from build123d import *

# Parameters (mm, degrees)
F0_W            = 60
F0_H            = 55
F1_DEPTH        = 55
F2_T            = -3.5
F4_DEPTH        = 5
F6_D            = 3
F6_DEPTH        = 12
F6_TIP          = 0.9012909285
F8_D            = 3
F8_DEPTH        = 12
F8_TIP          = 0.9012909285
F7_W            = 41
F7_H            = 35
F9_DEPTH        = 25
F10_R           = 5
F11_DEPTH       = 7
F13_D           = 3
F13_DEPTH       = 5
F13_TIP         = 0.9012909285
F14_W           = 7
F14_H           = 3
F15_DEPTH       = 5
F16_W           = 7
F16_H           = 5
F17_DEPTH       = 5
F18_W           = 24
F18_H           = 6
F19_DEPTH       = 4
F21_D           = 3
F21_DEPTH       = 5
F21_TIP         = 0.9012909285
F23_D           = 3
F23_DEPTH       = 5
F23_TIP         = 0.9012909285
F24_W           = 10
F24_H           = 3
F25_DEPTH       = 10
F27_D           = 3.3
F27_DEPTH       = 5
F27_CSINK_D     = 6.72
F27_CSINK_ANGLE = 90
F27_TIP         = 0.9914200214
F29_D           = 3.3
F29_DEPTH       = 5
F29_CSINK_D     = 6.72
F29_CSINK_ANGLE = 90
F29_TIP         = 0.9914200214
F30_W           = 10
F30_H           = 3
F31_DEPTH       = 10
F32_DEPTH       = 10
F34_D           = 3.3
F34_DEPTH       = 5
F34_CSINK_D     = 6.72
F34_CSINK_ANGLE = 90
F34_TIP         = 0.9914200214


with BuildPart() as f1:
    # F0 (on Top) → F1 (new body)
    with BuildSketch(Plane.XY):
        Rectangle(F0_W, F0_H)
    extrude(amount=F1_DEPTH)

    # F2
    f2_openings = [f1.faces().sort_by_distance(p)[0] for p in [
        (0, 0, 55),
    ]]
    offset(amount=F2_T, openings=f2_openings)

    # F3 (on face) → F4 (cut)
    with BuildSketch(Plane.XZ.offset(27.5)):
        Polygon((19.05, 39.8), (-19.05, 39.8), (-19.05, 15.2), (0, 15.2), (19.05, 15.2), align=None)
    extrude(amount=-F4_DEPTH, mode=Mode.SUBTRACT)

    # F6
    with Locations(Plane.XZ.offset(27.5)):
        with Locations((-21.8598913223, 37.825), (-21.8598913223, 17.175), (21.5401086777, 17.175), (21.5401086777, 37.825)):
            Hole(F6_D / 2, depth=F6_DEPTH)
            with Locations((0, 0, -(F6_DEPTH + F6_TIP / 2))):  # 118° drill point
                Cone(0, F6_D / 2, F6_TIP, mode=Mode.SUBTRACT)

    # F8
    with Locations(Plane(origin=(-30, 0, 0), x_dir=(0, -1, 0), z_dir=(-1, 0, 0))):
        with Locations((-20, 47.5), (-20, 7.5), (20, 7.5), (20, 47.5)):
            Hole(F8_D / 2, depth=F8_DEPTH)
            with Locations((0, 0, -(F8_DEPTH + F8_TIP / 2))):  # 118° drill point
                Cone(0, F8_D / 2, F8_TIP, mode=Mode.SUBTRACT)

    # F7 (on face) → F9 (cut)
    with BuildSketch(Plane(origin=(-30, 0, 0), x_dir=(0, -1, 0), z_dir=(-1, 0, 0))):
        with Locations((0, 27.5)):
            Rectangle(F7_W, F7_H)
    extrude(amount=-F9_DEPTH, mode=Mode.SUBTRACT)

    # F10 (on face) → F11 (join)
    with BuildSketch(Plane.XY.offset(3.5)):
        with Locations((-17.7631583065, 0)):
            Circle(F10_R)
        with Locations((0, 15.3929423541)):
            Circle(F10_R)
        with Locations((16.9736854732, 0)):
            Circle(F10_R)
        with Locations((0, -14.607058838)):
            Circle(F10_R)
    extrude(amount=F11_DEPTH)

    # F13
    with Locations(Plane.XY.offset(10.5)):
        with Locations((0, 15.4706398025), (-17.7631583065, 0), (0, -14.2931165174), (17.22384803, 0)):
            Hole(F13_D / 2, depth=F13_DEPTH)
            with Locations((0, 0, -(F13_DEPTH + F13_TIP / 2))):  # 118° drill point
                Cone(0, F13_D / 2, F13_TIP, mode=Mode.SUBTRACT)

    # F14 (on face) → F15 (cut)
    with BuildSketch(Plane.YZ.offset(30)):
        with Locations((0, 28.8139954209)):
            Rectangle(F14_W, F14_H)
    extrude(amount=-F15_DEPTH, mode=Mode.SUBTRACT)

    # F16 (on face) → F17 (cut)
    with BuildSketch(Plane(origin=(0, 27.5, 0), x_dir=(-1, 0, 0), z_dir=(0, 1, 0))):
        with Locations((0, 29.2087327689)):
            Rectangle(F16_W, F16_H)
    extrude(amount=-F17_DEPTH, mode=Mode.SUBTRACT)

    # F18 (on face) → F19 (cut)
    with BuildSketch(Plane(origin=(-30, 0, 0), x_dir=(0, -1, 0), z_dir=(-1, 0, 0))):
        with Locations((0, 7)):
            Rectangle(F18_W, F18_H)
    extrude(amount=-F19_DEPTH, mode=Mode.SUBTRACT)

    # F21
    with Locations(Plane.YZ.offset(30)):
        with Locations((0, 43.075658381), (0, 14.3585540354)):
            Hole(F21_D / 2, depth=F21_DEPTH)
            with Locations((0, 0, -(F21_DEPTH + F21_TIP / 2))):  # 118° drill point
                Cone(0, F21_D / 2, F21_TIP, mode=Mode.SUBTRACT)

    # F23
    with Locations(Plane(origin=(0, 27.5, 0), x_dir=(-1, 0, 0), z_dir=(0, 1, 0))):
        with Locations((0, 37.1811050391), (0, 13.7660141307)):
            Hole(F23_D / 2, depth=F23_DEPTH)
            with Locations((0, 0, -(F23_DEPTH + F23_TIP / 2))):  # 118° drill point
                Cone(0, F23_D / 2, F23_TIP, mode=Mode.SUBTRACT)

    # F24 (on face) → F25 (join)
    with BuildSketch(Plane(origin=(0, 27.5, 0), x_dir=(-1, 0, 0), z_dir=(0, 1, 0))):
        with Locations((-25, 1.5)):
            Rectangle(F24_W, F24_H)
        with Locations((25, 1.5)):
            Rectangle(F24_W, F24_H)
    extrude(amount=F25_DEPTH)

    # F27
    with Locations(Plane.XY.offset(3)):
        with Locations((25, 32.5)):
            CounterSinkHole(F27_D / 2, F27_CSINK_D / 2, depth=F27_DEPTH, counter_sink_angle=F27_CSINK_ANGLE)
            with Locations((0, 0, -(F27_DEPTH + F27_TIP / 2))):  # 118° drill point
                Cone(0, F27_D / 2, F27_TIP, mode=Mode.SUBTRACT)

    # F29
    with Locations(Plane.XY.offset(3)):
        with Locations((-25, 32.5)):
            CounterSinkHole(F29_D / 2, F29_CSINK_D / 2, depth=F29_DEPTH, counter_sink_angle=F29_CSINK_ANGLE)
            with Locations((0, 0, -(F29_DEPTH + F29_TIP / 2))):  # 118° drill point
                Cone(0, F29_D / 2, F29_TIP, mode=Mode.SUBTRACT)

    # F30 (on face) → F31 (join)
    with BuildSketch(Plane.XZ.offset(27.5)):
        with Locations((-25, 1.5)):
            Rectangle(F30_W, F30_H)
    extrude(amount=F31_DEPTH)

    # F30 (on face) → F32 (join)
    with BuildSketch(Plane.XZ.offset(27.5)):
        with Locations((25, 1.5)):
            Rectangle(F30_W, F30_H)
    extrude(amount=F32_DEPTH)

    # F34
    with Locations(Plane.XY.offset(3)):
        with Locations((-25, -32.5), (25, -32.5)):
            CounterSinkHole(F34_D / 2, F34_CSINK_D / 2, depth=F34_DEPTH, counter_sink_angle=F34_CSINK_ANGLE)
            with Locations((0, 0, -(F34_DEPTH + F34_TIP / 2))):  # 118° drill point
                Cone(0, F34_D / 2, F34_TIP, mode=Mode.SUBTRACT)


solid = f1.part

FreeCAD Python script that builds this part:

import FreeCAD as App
import Part
import Sketcher

V = App.Vector


def faces_at(feature, points):
    """Names of the faces that lie closest to the given points."""
    faces = feature.Shape.Faces
    near = lambda p: min(range(len(faces)), key=lambda i: faces[i].distToShape(Part.Vertex(*p))[0])
    return sorted({f"Face{near(p) + 1}" for p in points})

doc = App.newDocument("Part")
body = doc.addObject("PartDesign::Body", "Body")

# Sketch on XY plane
sketch1 = doc.addObject("Sketcher::SketchObject", "Sketch")
body.addObject(sketch1)
sketch1.AttachmentSupport = (doc.XY_Plane, [""])
sketch1.MapMode = "FlatFace"
sketch1.addGeometry([
    Part.LineSegment(V(-30, 27.5, 0), V(-30, -27.5, 0)),
    Part.LineSegment(V(-30, -27.5, 0), V(30, -27.5, 0)),
    Part.LineSegment(V(30, -27.5, 0), V(30, 27.5, 0)),
    Part.LineSegment(V(30, 27.5, 0), V(-30, 27.5, 0)),
], False)
sketch1.addConstraint([
    Sketcher.Constraint("Coincident", 0, 2, 1, 1),
    Sketcher.Constraint("Coincident", 1, 2, 2, 1),
    Sketcher.Constraint("Coincident", 2, 2, 3, 1),
    Sketcher.Constraint("Coincident", 3, 2, 0, 1),
    Sketcher.Constraint("Vertical", 0),
    Sketcher.Constraint("Horizontal", 1),
    Sketcher.Constraint("Vertical", 2),
    Sketcher.Constraint("Horizontal", 3),
    Sketcher.Constraint("Symmetric", 0, 2, 2, 2, -1, 1),
    Sketcher.Constraint("DistanceX", 1, 1, 1, 2, 60.0),
    Sketcher.Constraint("DistanceY", 0, 2, 0, 1, 55.0),
])
pad1 = doc.addObject("PartDesign::Pad", "Pad")
body.addObject(pad1)
pad1.Profile = sketch1
pad1.Length = 55
doc.recompute()

thickness = doc.addObject("PartDesign::Thickness", "Thickness")
body.addObject(thickness)
thickness.Base = (pad1, faces_at(pad1, [(0, 0, 55)]))
thickness.Value = 3.5
thickness.Reversed = True
thickness.Join = "Arc"

# Sketch on XZ plane
sketch2 = doc.addObject("Sketcher::SketchObject", "Sketch001")
body.addObject(sketch2)
sketch2.AttachmentSupport = (doc.XZ_Plane, [""])
sketch2.MapMode = "FlatFace"
sketch2.AttachmentOffset = App.Placement(V(0, 0, 27.5), App.Rotation())
sketch2.addGeometry([
    Part.LineSegment(V(19.05, 39.8, 0), V(-19.05, 39.8, 0)),
    Part.LineSegment(V(-19.05, 39.8, 0), V(-19.05, 15.2, 0)),
    Part.LineSegment(V(-19.05, 15.2, 0), V(19.05, 15.2, 0)),
    Part.LineSegment(V(19.05, 15.2, 0), V(19.05, 39.8, 0)),
], False)
sketch2.addConstraint([
    Sketcher.Constraint("Coincident", 0, 2, 1, 1),
    Sketcher.Constraint("Coincident", 1, 2, 2, 1),
    Sketcher.Constraint("Coincident", 2, 2, 3, 1),
    Sketcher.Constraint("Coincident", 3, 2, 0, 1),
    Sketcher.Constraint("Horizontal", 0),
    Sketcher.Constraint("Vertical", 1),
    Sketcher.Constraint("Horizontal", 2),
    Sketcher.Constraint("Vertical", 3),
    Sketcher.Constraint("DistanceX", 0, 2, 0, 1, 38.1),
    Sketcher.Constraint("DistanceY", 1, 2, 1, 1, 24.6),
    Sketcher.Constraint("DistanceY", -1, 1, 0, 2, 39.8),
    Sketcher.Constraint("DistanceX", 0, 2, -1, 1, 19.05),
])
pocket1 = doc.addObject("PartDesign::Pocket", "Pocket")
body.addObject(pocket1)
pocket1.Profile = sketch2
pocket1.Length = 5

# Sketch on XZ plane
sketch3 = doc.addObject("Sketcher::SketchObject", "Sketch002")
body.addObject(sketch3)
sketch3.AttachmentSupport = (doc.XZ_Plane, [""])
sketch3.MapMode = "FlatFace"
sketch3.AttachmentOffset = App.Placement(V(0, 0, 27.5), App.Rotation())
sketch3.addGeometry([
    Part.Circle(V(-21.859891, 37.825, 0), V(0, 0, 1), 1.5),
    Part.Circle(V(-21.859891, 17.175, 0), V(0, 0, 1), 1.5),
    Part.Circle(V(21.540109, 17.175, 0), V(0, 0, 1), 1.5),
    Part.Circle(V(21.540109, 37.825, 0), V(0, 0, 1), 1.5),
], False)
sketch3.addConstraint([
    Sketcher.Constraint("Equal", 0, 1),
    Sketcher.Constraint("Equal", 1, 2),
    Sketcher.Constraint("Equal", 2, 3),
    Sketcher.Constraint("Horizontal", 1, 3, 2, 3),
    Sketcher.Constraint("Horizontal", 0, 3, 3, 3),
    Sketcher.Constraint("Vertical", 0, 3, 1, 3),
    Sketcher.Constraint("Vertical", 2, 3, 3, 3),
    Sketcher.Constraint("Diameter", 0, 3.0),
    Sketcher.Constraint("DistanceX", 1, 3, 2, 3, 43.4),
    Sketcher.Constraint("DistanceY", 1, 3, 0, 3, 20.65),
    Sketcher.Constraint("DistanceY", -1, 1, 0, 3, 37.825),
    Sketcher.Constraint("DistanceX", 0, 3, -1, 1, 21.859891),
])
doc.recompute()
hole = doc.addObject("PartDesign::Hole", "Hole")
body.addObject(hole)
hole.Profile = sketch3
hole.ThreadType = "None"
hole.Diameter = 3
hole.DepthType = "Dimension"
hole.Depth = 12
hole.DrillPoint = "Angled"
hole.DrillPointAngle = 118

# Sketch on YZ plane
sketch4 = doc.addObject("Sketcher::SketchObject", "Sketch003")
body.addObject(sketch4)
sketch4.AttachmentSupport = (doc.YZ_Plane, [""])
sketch4.MapMode = "FlatFace"
sketch4.AttachmentOffset = App.Placement(V(0, 0, -30), App.Rotation())
sketch4.addGeometry([
    Part.Circle(V(20, 47.5, 0), V(0, 0, 1), 1.5),
    Part.Circle(V(20, 7.5, 0), V(0, 0, 1), 1.5),
    Part.Circle(V(-20, 7.5, 0), V(0, 0, 1), 1.5),
    Part.Circle(V(-20, 47.5, 0), V(0, 0, 1), 1.5),
], False)
sketch4.addConstraint([
    Sketcher.Constraint("Equal", 0, 1),
    Sketcher.Constraint("Equal", 1, 2),
    Sketcher.Constraint("Equal", 2, 3),
    Sketcher.Constraint("Symmetric", 1, 3, 2, 3, -2),
    Sketcher.Constraint("Symmetric", 0, 3, 3, 3, -2),
    Sketcher.Constraint("Vertical", 0, 3, 1, 3),
    Sketcher.Constraint("Diameter", 0, 3.0),
    Sketcher.Constraint("DistanceX", -1, 1, 0, 3, 20.0),
    Sketcher.Constraint("DistanceY", 1, 3, 0, 3, 40.0),
    Sketcher.Constraint("DistanceY", -1, 1, 0, 3, 47.5),
])
doc.recompute()
hole2 = doc.addObject("PartDesign::Hole", "Hole001")
body.addObject(hole2)
hole2.Profile = sketch4
hole2.ThreadType = "None"
hole2.Diameter = 3
hole2.DepthType = "Dimension"
hole2.Depth = 12
hole2.DrillPoint = "Angled"
hole2.DrillPointAngle = 118
hole2.Reversed = True

# Sketch on YZ plane
sketch5 = doc.addObject("Sketcher::SketchObject", "Sketch004")
body.addObject(sketch5)
sketch5.AttachmentSupport = (doc.YZ_Plane, [""])
sketch5.MapMode = "FlatFace"
sketch5.AttachmentOffset = App.Placement(V(0, 0, -30), App.Rotation())
sketch5.addGeometry([
    Part.LineSegment(V(20.5, 45, 0), V(20.5, 10, 0)),
    Part.LineSegment(V(20.5, 10, 0), V(-20.5, 10, 0)),
    Part.LineSegment(V(-20.5, 10, 0), V(-20.5, 45, 0)),
    Part.LineSegment(V(-20.5, 45, 0), V(20.5, 45, 0)),
], False)
sketch5.addConstraint([
    Sketcher.Constraint("Coincident", 0, 2, 1, 1),
    Sketcher.Constraint("Coincident", 1, 2, 2, 1),
    Sketcher.Constraint("Coincident", 2, 2, 3, 1),
    Sketcher.Constraint("Coincident", 3, 2, 0, 1),
    Sketcher.Constraint("Vertical", 0),
    Sketcher.Constraint("Horizontal", 1),
    Sketcher.Constraint("Vertical", 2),
    Sketcher.Constraint("Horizontal", 3),
    Sketcher.Constraint("DistanceX", 1, 2, 1, 1, 41.0),
    Sketcher.Constraint("DistanceY", 0, 2, 0, 1, 35.0),
    Sketcher.Constraint("DistanceY", -1, 1, 0, 2, 10.0),
    Sketcher.Constraint("DistanceX", -1, 1, 0, 2, 20.5),
])
pocket2 = doc.addObject("PartDesign::Pocket", "Pocket001")
body.addObject(pocket2)
pocket2.Profile = sketch5
pocket2.Length = 25
pocket2.Reversed = True

# Sketch on XY plane
sketch6 = doc.addObject("Sketcher::SketchObject", "Sketch005")
body.addObject(sketch6)
sketch6.AttachmentSupport = (doc.XY_Plane, [""])
sketch6.MapMode = "FlatFace"
sketch6.AttachmentOffset = App.Placement(V(0, 0, 3.5), App.Rotation())
sketch6.addGeometry([
    Part.Circle(V(-17.763158, 0, 0), V(0, 0, 1), 5),
    Part.Circle(V(0, 15.392942, 0), V(0, 0, 1), 5),
    Part.Circle(V(16.973685, 0, 0), V(0, 0, 1), 5),
    Part.Circle(V(0, -14.607059, 0), V(0, 0, 1), 5),
], False)
sketch6.addConstraint([
    Sketcher.Constraint("Equal", 0, 1),
    Sketcher.Constraint("Equal", 1, 2),
    Sketcher.Constraint("Equal", 2, 3),
    Sketcher.Constraint("PointOnObject", 0, 3, -1),
    Sketcher.Constraint("PointOnObject", 1, 3, -2),
    Sketcher.Constraint("PointOnObject", 2, 3, -1),
    Sketcher.Constraint("PointOnObject", 3, 3, -2),
    Sketcher.Constraint("Diameter", 0, 10.0),
    Sketcher.Constraint("DistanceY", 3, 3, 1, 3, 30.000001),
    Sketcher.Constraint("DistanceX", 0, 3, -1, 1, 17.763158),
    Sketcher.Constraint("DistanceY", 3, 3, -1, 1, 14.607059),
    Sketcher.Constraint("DistanceX", -1, 1, 2, 3, 16.973685),
])
pad2 = doc.addObject("PartDesign::Pad", "Pad001")
body.addObject(pad2)
pad2.Profile = sketch6
pad2.Length = 7

# Sketch on XY plane
sketch7 = doc.addObject("Sketcher::SketchObject", "Sketch006")
body.addObject(sketch7)
sketch7.AttachmentSupport = (doc.XY_Plane, [""])
sketch7.MapMode = "FlatFace"
sketch7.AttachmentOffset = App.Placement(V(0, 0, 10.5), App.Rotation())
sketch7.addGeometry([
    Part.Circle(V(0, 15.47064, 0), V(0, 0, 1), 1.5),
    Part.Circle(V(-17.763158, 0, 0), V(0, 0, 1), 1.5),
    Part.Circle(V(0, -14.293117, 0), V(0, 0, 1), 1.5),
    Part.Circle(V(17.223848, 0, 0), V(0, 0, 1), 1.5),
], False)
sketch7.addConstraint([
    Sketcher.Constraint("Equal", 0, 1),
    Sketcher.Constraint("Equal", 1, 2),
    Sketcher.Constraint("Equal", 2, 3),
    Sketcher.Constraint("PointOnObject", 0, 3, -2),
    Sketcher.Constraint("PointOnObject", 1, 3, -1),
    Sketcher.Constraint("PointOnObject", 2, 3, -2),
    Sketcher.Constraint("PointOnObject", 3, 3, -1),
    Sketcher.Constraint("Diameter", 0, 3.0),
    Sketcher.Constraint("DistanceY", -1, 1, 0, 3, 15.47064),
    Sketcher.Constraint("DistanceX", 1, 3, -1, 1, 17.763158),
    Sketcher.Constraint("DistanceX", -1, 1, 3, 3, 17.223848),
    Sketcher.Constraint("DistanceY", 2, 3, -1, 1, 14.293117),
])
doc.recompute()
hole3 = doc.addObject("PartDesign::Hole", "Hole002")
body.addObject(hole3)
hole3.Profile = sketch7
hole3.ThreadType = "None"
hole3.Diameter = 3
hole3.DepthType = "Dimension"
hole3.Depth = 5
hole3.DrillPoint = "Angled"
hole3.DrillPointAngle = 118

# Sketch on YZ plane
sketch8 = doc.addObject("Sketcher::SketchObject", "Sketch007")
body.addObject(sketch8)
sketch8.AttachmentSupport = (doc.YZ_Plane, [""])
sketch8.MapMode = "FlatFace"
sketch8.AttachmentOffset = App.Placement(V(0, 0, 30), App.Rotation())
sketch8.addGeometry([
    Part.LineSegment(V(-3.5, 30.313995, 0), V(-3.5, 27.313995, 0)),
    Part.LineSegment(V(-3.5, 27.313995, 0), V(3.5, 27.313995, 0)),
    Part.LineSegment(V(3.5, 27.313995, 0), V(3.5, 30.313995, 0)),
    Part.LineSegment(V(3.5, 30.313995, 0), V(-3.5, 30.313995, 0)),
], False)
sketch8.addConstraint([
    Sketcher.Constraint("Coincident", 0, 2, 1, 1),
    Sketcher.Constraint("Coincident", 1, 2, 2, 1),
    Sketcher.Constraint("Coincident", 2, 2, 3, 1),
    Sketcher.Constraint("Coincident", 3, 2, 0, 1),
    Sketcher.Constraint("Vertical", 0),
    Sketcher.Constraint("Horizontal", 1),
    Sketcher.Constraint("Vertical", 2),
    Sketcher.Constraint("Horizontal", 3),
    Sketcher.Constraint("DistanceX", 1, 1, 1, 2, 7.0),
    Sketcher.Constraint("DistanceY", 0, 2, 0, 1, 3.0),
    Sketcher.Constraint("DistanceX", 0, 2, -1, 1, 3.5),
    Sketcher.Constraint("DistanceY", -1, 1, 0, 2, 27.313995),
])
pocket3 = doc.addObject("PartDesign::Pocket", "Pocket002")
body.addObject(pocket3)
pocket3.Profile = sketch8
pocket3.Length = 5

# Sketch on XZ plane
sketch9 = doc.addObject("Sketcher::SketchObject", "Sketch008")
body.addObject(sketch9)
sketch9.AttachmentSupport = (doc.XZ_Plane, [""])
sketch9.MapMode = "FlatFace"
sketch9.AttachmentOffset = App.Placement(V(0, 0, -27.5), App.Rotation())
sketch9.addGeometry([
    Part.LineSegment(V(3.5, 31.708733, 0), V(3.5, 26.708733, 0)),
    Part.LineSegment(V(3.5, 26.708733, 0), V(-3.5, 26.708733, 0)),
    Part.LineSegment(V(-3.5, 26.708733, 0), V(-3.5, 31.708733, 0)),
    Part.LineSegment(V(-3.5, 31.708733, 0), V(3.5, 31.708733, 0)),
], False)
sketch9.addConstraint([
    Sketcher.Constraint("Coincident", 0, 2, 1, 1),
    Sketcher.Constraint("Coincident", 1, 2, 2, 1),
    Sketcher.Constraint("Coincident", 2, 2, 3, 1),
    Sketcher.Constraint("Coincident", 3, 2, 0, 1),
    Sketcher.Constraint("Vertical", 0),
    Sketcher.Constraint("Horizontal", 1),
    Sketcher.Constraint("Vertical", 2),
    Sketcher.Constraint("Horizontal", 3),
    Sketcher.Constraint("DistanceX", 1, 2, 1, 1, 7.0),
    Sketcher.Constraint("DistanceY", 0, 2, 0, 1, 5.0),
    Sketcher.Constraint("DistanceX", -1, 1, 0, 2, 3.5),
    Sketcher.Constraint("DistanceY", -1, 1, 0, 2, 26.708733),
])
pocket4 = doc.addObject("PartDesign::Pocket", "Pocket003")
body.addObject(pocket4)
pocket4.Profile = sketch9
pocket4.Length = 5
pocket4.Reversed = True

# Sketch on YZ plane
sketch10 = doc.addObject("Sketcher::SketchObject", "Sketch009")
body.addObject(sketch10)
sketch10.AttachmentSupport = (doc.YZ_Plane, [""])
sketch10.MapMode = "FlatFace"
sketch10.AttachmentOffset = App.Placement(V(0, 0, -30), App.Rotation())
sketch10.addGeometry([
    Part.LineSegment(V(12, 10, 0), V(12, 4, 0)),
    Part.LineSegment(V(12, 4, 0), V(-12, 4, 0)),
    Part.LineSegment(V(-12, 4, 0), V(-12, 10, 0)),
    Part.LineSegment(V(-12, 10, 0), V(12, 10, 0)),
], False)
sketch10.addConstraint([
    Sketcher.Constraint("Coincident", 0, 2, 1, 1),
    Sketcher.Constraint("Coincident", 1, 2, 2, 1),
    Sketcher.Constraint("Coincident", 2, 2, 3, 1),
    Sketcher.Constraint("Coincident", 3, 2, 0, 1),
    Sketcher.Constraint("Vertical", 0),
    Sketcher.Constraint("Horizontal", 1),
    Sketcher.Constraint("Vertical", 2),
    Sketcher.Constraint("Horizontal", 3),
    Sketcher.Constraint("DistanceX", 1, 2, 1, 1, 24.0),
    Sketcher.Constraint("DistanceY", 0, 2, 0, 1, 6.0),
    Sketcher.Constraint("DistanceX", -1, 1, 0, 2, 12.0),
    Sketcher.Constraint("DistanceY", -1, 1, 0, 2, 4.0),
])
pocket5 = doc.addObject("PartDesign::Pocket", "Pocket004")
body.addObject(pocket5)
pocket5.Profile = sketch10
pocket5.Length = 4
pocket5.Reversed = True

# Sketch on YZ plane
sketch11 = doc.addObject("Sketcher::SketchObject", "Sketch010")
body.addObject(sketch11)
sketch11.AttachmentSupport = (doc.YZ_Plane, [""])
sketch11.MapMode = "FlatFace"
sketch11.AttachmentOffset = App.Placement(V(0, 0, 30), App.Rotation())
sketch11.addGeometry([
    Part.Circle(V(0, 43.075658, 0), V(0, 0, 1), 1.5),
    Part.Circle(V(0, 14.358554, 0), V(0, 0, 1), 1.5),
], False)
sketch11.addConstraint([
    Sketcher.Constraint("Equal", 0, 1),
    Sketcher.Constraint("PointOnObject", 0, 3, -2),
    Sketcher.Constraint("PointOnObject", 1, 3, -2),
    Sketcher.Constraint("Diameter", 0, 3.0),
    Sketcher.Constraint("DistanceY", -1, 1, 0, 3, 43.075658),
    Sketcher.Constraint("DistanceY", -1, 1, 1, 3, 14.358554),
])
doc.recompute()
hole4 = doc.addObject("PartDesign::Hole", "Hole003")
body.addObject(hole4)
hole4.Profile = sketch11
hole4.ThreadType = "None"
hole4.Diameter = 3
hole4.DepthType = "Dimension"
hole4.Depth = 5
hole4.DrillPoint = "Angled"
hole4.DrillPointAngle = 118

# Sketch on XZ plane
sketch12 = doc.addObject("Sketcher::SketchObject", "Sketch011")
body.addObject(sketch12)
sketch12.AttachmentSupport = (doc.XZ_Plane, [""])
sketch12.MapMode = "FlatFace"
sketch12.AttachmentOffset = App.Placement(V(0, 0, -27.5), App.Rotation())
sketch12.addGeometry([
    Part.Circle(V(0, 37.181105, 0), V(0, 0, 1), 1.5),
    Part.Circle(V(0, 13.766014, 0), V(0, 0, 1), 1.5),
], False)
sketch12.addConstraint([
    Sketcher.Constraint("Equal", 0, 1),
    Sketcher.Constraint("PointOnObject", 0, 3, -2),
    Sketcher.Constraint("PointOnObject", 1, 3, -2),
    Sketcher.Constraint("Diameter", 0, 3.0),
    Sketcher.Constraint("DistanceY", 1, 3, 0, 3, 23.415091),
    Sketcher.Constraint("DistanceY", -1, 1, 0, 3, 37.181105),
])
doc.recompute()
hole5 = doc.addObject("PartDesign::Hole", "Hole004")
body.addObject(hole5)
hole5.Profile = sketch12
hole5.ThreadType = "None"
hole5.Diameter = 3
hole5.DepthType = "Dimension"
hole5.Depth = 5
hole5.DrillPoint = "Angled"
hole5.DrillPointAngle = 118
hole5.Reversed = True

# Sketch on XZ plane
sketch13 = doc.addObject("Sketcher::SketchObject", "Sketch012")
body.addObject(sketch13)
sketch13.AttachmentSupport = (doc.XZ_Plane, [""])
sketch13.MapMode = "FlatFace"
sketch13.AttachmentOffset = App.Placement(V(0, 0, -27.5), App.Rotation())
sketch13.addGeometry([
    Part.LineSegment(V(30, 3, 0), V(30, 0, 0)),  # 0
    Part.LineSegment(V(30, 0, 0), V(20, 0, 0)),  # 1
    Part.LineSegment(V(20, 0, 0), V(20, 3, 0)),  # 2
    Part.LineSegment(V(20, 3, 0), V(30, 3, 0)),  # 3
    Part.LineSegment(V(-20, 3, 0), V(-20, 0, 0)),  # 4
    Part.LineSegment(V(-20, 0, 0), V(-30, 0, 0)),  # 5
    Part.LineSegment(V(-30, 0, 0), V(-30, 3, 0)),  # 6
    Part.LineSegment(V(-30, 3, 0), V(-20, 3, 0)),  # 7
], False)
sketch13.addConstraint([
    Sketcher.Constraint("Coincident", 0, 2, 1, 1),
    Sketcher.Constraint("Coincident", 1, 2, 2, 1),
    Sketcher.Constraint("Coincident", 2, 2, 3, 1),
    Sketcher.Constraint("Coincident", 3, 2, 0, 1),
    Sketcher.Constraint("Coincident", 4, 2, 5, 1),
    Sketcher.Constraint("Coincident", 5, 2, 6, 1),
    Sketcher.Constraint("Coincident", 6, 2, 7, 1),
    Sketcher.Constraint("Coincident", 7, 2, 4, 1),
    Sketcher.Constraint("Vertical", 0),
    Sketcher.Constraint("Horizontal", 1),
    Sketcher.Constraint("Vertical", 2),
    Sketcher.Constraint("Horizontal", 3),
    Sketcher.Constraint("Vertical", 4),
    Sketcher.Constraint("Horizontal", 5),
    Sketcher.Constraint("Vertical", 6),
    Sketcher.Constraint("Horizontal", 7),
    Sketcher.Constraint("Symmetric", 1, 2, 4, 2, -1, 1),
    Sketcher.Constraint("Symmetric", 0, 2, 5, 2, -2),
    Sketcher.Constraint("Horizontal", 3, 2, 6, 2),
    Sketcher.Constraint("DistanceX", 1, 2, 1, 1, 10.0),
    Sketcher.Constraint("DistanceY", 0, 2, 0, 1, 3.0),
    Sketcher.Constraint("DistanceX", -1, 1, 0, 2, 30.0),
])
pad3 = doc.addObject("PartDesign::Pad", "Pad002")
body.addObject(pad3)
pad3.Profile = sketch13
pad3.Length = 10
pad3.Reversed = True

# Sketch on XY plane
sketch14 = doc.addObject("Sketcher::SketchObject", "Sketch013")
body.addObject(sketch14)
sketch14.AttachmentSupport = (doc.XY_Plane, [""])
sketch14.MapMode = "FlatFace"
sketch14.AttachmentOffset = App.Placement(V(0, 0, 3), App.Rotation())
sketch14.addGeometry(Part.Circle(V(25, 32.5, 0), V(0, 0, 1), 1.65), False)
sketch14.addConstraint([
    Sketcher.Constraint("Diameter", 0, 3.3),
    Sketcher.Constraint("DistanceX", -1, 1, 0, 3, 25.0),
    Sketcher.Constraint("DistanceY", -1, 1, 0, 3, 32.5),
])
doc.recompute()
hole6 = doc.addObject("PartDesign::Hole", "Hole005")
body.addObject(hole6)
hole6.Profile = sketch14
hole6.ThreadType = "None"
hole6.Diameter = 3.3
hole6.DepthType = "Dimension"
hole6.Depth = 5
hole6.DrillPoint = "Angled"
hole6.DrillPointAngle = 118
hole6.HoleCutType = "Countersink"
hole6.HoleCutDiameter = 6.72
hole6.HoleCutCountersinkAngle = 90

# Sketch on XY plane
sketch15 = doc.addObject("Sketcher::SketchObject", "Sketch014")
body.addObject(sketch15)
sketch15.AttachmentSupport = (doc.XY_Plane, [""])
sketch15.MapMode = "FlatFace"
sketch15.AttachmentOffset = App.Placement(V(0, 0, 3), App.Rotation())
sketch15.addGeometry(Part.Circle(V(-25, 32.5, 0), V(0, 0, 1), 1.65), False)
sketch15.addConstraint([
    Sketcher.Constraint("Diameter", 0, 3.3),
    Sketcher.Constraint("DistanceX", 0, 3, -1, 1, 25.0),
    Sketcher.Constraint("DistanceY", -1, 1, 0, 3, 32.5),
])
doc.recompute()
hole7 = doc.addObject("PartDesign::Hole", "Hole006")
body.addObject(hole7)
hole7.Profile = sketch15
hole7.ThreadType = "None"
hole7.Diameter = 3.3
hole7.DepthType = "Dimension"
hole7.Depth = 5
hole7.DrillPoint = "Angled"
hole7.DrillPointAngle = 118
hole7.HoleCutType = "Countersink"
hole7.HoleCutDiameter = 6.72
hole7.HoleCutCountersinkAngle = 90

# Sketch on XZ plane
sketch16 = doc.addObject("Sketcher::SketchObject", "Sketch015")
body.addObject(sketch16)
sketch16.AttachmentSupport = (doc.XZ_Plane, [""])
sketch16.MapMode = "FlatFace"
sketch16.AttachmentOffset = App.Placement(V(0, 0, 27.5), App.Rotation())
sketch16.addGeometry([
    Part.LineSegment(V(-30, 3, 0), V(-30, 0, 0)),
    Part.LineSegment(V(-30, 0, 0), V(-20, 0, 0)),
    Part.LineSegment(V(-20, 0, 0), V(-20, 3, 0)),
    Part.LineSegment(V(-20, 3, 0), V(-30, 3, 0)),
], False)
sketch16.addConstraint([
    Sketcher.Constraint("Coincident", 0, 2, 1, 1),
    Sketcher.Constraint("Coincident", 1, 2, 2, 1),
    Sketcher.Constraint("Coincident", 2, 2, 3, 1),
    Sketcher.Constraint("Coincident", 3, 2, 0, 1),
    Sketcher.Constraint("Vertical", 0),
    Sketcher.Constraint("Horizontal", 1),
    Sketcher.Constraint("Vertical", 2),
    Sketcher.Constraint("Horizontal", 3),
    Sketcher.Constraint("PointOnObject", 0, 2, -1),
    Sketcher.Constraint("DistanceX", 1, 1, 1, 2, 10.0),
    Sketcher.Constraint("DistanceY", 0, 2, 0, 1, 3.0),
    Sketcher.Constraint("DistanceX", 0, 2, -1, 1, 30.0),
])
pad4 = doc.addObject("PartDesign::Pad", "Pad003")
body.addObject(pad4)
pad4.Profile = sketch16
pad4.Length = 10

# Sketch on XZ plane
sketch17 = doc.addObject("Sketcher::SketchObject", "Sketch016")
body.addObject(sketch17)
sketch17.AttachmentSupport = (doc.XZ_Plane, [""])
sketch17.MapMode = "FlatFace"
sketch17.AttachmentOffset = App.Placement(V(0, 0, 27.5), App.Rotation())
sketch17.addGeometry([
    Part.LineSegment(V(20, 3, 0), V(20, 0, 0)),
    Part.LineSegment(V(20, 0, 0), V(30, 0, 0)),
    Part.LineSegment(V(30, 0, 0), V(30, 3, 0)),
    Part.LineSegment(V(30, 3, 0), V(20, 3, 0)),
], False)
sketch17.addConstraint([
    Sketcher.Constraint("Coincident", 0, 2, 1, 1),
    Sketcher.Constraint("Coincident", 1, 2, 2, 1),
    Sketcher.Constraint("Coincident", 2, 2, 3, 1),
    Sketcher.Constraint("Coincident", 3, 2, 0, 1),
    Sketcher.Constraint("Vertical", 0),
    Sketcher.Constraint("Horizontal", 1),
    Sketcher.Constraint("Vertical", 2),
    Sketcher.Constraint("Horizontal", 3),
    Sketcher.Constraint("PointOnObject", 0, 2, -1),
    Sketcher.Constraint("DistanceX", 1, 1, 1, 2, 10.0),
    Sketcher.Constraint("DistanceY", 0, 2, 0, 1, 3.0),
    Sketcher.Constraint("DistanceX", -1, 1, 0, 2, 20.0),
])
pad5 = doc.addObject("PartDesign::Pad", "Pad004")
body.addObject(pad5)
pad5.Profile = sketch17
pad5.Length = 10

# Sketch on XY plane
sketch18 = doc.addObject("Sketcher::SketchObject", "Sketch017")
body.addObject(sketch18)
sketch18.AttachmentSupport = (doc.XY_Plane, [""])
sketch18.MapMode = "FlatFace"
sketch18.AttachmentOffset = App.Placement(V(0, 0, 3), App.Rotation())
sketch18.addGeometry([
    Part.Circle(V(-25, -32.5, 0), V(0, 0, 1), 1.65),
    Part.Circle(V(25, -32.5, 0), V(0, 0, 1), 1.65),
], False)
sketch18.addConstraint([
    Sketcher.Constraint("Equal", 0, 1),
    Sketcher.Constraint("Symmetric", 0, 3, 1, 3, -2),
    Sketcher.Constraint("Diameter", 0, 3.3),
    Sketcher.Constraint("DistanceX", 0, 3, -1, 1, 25.0),
    Sketcher.Constraint("DistanceY", 0, 3, -1, 1, 32.5),
])
doc.recompute()
hole8 = doc.addObject("PartDesign::Hole", "Hole007")
body.addObject(hole8)
hole8.Profile = sketch18
hole8.ThreadType = "None"
hole8.Diameter = 3.3
hole8.DepthType = "Dimension"
hole8.Depth = 5
hole8.DrillPoint = "Angled"
hole8.DrillPointAngle = 118
hole8.HoleCutType = "Countersink"
hole8.HoleCutDiameter = 6.72
hole8.HoleCutCountersinkAngle = 90

doc.recompute()
